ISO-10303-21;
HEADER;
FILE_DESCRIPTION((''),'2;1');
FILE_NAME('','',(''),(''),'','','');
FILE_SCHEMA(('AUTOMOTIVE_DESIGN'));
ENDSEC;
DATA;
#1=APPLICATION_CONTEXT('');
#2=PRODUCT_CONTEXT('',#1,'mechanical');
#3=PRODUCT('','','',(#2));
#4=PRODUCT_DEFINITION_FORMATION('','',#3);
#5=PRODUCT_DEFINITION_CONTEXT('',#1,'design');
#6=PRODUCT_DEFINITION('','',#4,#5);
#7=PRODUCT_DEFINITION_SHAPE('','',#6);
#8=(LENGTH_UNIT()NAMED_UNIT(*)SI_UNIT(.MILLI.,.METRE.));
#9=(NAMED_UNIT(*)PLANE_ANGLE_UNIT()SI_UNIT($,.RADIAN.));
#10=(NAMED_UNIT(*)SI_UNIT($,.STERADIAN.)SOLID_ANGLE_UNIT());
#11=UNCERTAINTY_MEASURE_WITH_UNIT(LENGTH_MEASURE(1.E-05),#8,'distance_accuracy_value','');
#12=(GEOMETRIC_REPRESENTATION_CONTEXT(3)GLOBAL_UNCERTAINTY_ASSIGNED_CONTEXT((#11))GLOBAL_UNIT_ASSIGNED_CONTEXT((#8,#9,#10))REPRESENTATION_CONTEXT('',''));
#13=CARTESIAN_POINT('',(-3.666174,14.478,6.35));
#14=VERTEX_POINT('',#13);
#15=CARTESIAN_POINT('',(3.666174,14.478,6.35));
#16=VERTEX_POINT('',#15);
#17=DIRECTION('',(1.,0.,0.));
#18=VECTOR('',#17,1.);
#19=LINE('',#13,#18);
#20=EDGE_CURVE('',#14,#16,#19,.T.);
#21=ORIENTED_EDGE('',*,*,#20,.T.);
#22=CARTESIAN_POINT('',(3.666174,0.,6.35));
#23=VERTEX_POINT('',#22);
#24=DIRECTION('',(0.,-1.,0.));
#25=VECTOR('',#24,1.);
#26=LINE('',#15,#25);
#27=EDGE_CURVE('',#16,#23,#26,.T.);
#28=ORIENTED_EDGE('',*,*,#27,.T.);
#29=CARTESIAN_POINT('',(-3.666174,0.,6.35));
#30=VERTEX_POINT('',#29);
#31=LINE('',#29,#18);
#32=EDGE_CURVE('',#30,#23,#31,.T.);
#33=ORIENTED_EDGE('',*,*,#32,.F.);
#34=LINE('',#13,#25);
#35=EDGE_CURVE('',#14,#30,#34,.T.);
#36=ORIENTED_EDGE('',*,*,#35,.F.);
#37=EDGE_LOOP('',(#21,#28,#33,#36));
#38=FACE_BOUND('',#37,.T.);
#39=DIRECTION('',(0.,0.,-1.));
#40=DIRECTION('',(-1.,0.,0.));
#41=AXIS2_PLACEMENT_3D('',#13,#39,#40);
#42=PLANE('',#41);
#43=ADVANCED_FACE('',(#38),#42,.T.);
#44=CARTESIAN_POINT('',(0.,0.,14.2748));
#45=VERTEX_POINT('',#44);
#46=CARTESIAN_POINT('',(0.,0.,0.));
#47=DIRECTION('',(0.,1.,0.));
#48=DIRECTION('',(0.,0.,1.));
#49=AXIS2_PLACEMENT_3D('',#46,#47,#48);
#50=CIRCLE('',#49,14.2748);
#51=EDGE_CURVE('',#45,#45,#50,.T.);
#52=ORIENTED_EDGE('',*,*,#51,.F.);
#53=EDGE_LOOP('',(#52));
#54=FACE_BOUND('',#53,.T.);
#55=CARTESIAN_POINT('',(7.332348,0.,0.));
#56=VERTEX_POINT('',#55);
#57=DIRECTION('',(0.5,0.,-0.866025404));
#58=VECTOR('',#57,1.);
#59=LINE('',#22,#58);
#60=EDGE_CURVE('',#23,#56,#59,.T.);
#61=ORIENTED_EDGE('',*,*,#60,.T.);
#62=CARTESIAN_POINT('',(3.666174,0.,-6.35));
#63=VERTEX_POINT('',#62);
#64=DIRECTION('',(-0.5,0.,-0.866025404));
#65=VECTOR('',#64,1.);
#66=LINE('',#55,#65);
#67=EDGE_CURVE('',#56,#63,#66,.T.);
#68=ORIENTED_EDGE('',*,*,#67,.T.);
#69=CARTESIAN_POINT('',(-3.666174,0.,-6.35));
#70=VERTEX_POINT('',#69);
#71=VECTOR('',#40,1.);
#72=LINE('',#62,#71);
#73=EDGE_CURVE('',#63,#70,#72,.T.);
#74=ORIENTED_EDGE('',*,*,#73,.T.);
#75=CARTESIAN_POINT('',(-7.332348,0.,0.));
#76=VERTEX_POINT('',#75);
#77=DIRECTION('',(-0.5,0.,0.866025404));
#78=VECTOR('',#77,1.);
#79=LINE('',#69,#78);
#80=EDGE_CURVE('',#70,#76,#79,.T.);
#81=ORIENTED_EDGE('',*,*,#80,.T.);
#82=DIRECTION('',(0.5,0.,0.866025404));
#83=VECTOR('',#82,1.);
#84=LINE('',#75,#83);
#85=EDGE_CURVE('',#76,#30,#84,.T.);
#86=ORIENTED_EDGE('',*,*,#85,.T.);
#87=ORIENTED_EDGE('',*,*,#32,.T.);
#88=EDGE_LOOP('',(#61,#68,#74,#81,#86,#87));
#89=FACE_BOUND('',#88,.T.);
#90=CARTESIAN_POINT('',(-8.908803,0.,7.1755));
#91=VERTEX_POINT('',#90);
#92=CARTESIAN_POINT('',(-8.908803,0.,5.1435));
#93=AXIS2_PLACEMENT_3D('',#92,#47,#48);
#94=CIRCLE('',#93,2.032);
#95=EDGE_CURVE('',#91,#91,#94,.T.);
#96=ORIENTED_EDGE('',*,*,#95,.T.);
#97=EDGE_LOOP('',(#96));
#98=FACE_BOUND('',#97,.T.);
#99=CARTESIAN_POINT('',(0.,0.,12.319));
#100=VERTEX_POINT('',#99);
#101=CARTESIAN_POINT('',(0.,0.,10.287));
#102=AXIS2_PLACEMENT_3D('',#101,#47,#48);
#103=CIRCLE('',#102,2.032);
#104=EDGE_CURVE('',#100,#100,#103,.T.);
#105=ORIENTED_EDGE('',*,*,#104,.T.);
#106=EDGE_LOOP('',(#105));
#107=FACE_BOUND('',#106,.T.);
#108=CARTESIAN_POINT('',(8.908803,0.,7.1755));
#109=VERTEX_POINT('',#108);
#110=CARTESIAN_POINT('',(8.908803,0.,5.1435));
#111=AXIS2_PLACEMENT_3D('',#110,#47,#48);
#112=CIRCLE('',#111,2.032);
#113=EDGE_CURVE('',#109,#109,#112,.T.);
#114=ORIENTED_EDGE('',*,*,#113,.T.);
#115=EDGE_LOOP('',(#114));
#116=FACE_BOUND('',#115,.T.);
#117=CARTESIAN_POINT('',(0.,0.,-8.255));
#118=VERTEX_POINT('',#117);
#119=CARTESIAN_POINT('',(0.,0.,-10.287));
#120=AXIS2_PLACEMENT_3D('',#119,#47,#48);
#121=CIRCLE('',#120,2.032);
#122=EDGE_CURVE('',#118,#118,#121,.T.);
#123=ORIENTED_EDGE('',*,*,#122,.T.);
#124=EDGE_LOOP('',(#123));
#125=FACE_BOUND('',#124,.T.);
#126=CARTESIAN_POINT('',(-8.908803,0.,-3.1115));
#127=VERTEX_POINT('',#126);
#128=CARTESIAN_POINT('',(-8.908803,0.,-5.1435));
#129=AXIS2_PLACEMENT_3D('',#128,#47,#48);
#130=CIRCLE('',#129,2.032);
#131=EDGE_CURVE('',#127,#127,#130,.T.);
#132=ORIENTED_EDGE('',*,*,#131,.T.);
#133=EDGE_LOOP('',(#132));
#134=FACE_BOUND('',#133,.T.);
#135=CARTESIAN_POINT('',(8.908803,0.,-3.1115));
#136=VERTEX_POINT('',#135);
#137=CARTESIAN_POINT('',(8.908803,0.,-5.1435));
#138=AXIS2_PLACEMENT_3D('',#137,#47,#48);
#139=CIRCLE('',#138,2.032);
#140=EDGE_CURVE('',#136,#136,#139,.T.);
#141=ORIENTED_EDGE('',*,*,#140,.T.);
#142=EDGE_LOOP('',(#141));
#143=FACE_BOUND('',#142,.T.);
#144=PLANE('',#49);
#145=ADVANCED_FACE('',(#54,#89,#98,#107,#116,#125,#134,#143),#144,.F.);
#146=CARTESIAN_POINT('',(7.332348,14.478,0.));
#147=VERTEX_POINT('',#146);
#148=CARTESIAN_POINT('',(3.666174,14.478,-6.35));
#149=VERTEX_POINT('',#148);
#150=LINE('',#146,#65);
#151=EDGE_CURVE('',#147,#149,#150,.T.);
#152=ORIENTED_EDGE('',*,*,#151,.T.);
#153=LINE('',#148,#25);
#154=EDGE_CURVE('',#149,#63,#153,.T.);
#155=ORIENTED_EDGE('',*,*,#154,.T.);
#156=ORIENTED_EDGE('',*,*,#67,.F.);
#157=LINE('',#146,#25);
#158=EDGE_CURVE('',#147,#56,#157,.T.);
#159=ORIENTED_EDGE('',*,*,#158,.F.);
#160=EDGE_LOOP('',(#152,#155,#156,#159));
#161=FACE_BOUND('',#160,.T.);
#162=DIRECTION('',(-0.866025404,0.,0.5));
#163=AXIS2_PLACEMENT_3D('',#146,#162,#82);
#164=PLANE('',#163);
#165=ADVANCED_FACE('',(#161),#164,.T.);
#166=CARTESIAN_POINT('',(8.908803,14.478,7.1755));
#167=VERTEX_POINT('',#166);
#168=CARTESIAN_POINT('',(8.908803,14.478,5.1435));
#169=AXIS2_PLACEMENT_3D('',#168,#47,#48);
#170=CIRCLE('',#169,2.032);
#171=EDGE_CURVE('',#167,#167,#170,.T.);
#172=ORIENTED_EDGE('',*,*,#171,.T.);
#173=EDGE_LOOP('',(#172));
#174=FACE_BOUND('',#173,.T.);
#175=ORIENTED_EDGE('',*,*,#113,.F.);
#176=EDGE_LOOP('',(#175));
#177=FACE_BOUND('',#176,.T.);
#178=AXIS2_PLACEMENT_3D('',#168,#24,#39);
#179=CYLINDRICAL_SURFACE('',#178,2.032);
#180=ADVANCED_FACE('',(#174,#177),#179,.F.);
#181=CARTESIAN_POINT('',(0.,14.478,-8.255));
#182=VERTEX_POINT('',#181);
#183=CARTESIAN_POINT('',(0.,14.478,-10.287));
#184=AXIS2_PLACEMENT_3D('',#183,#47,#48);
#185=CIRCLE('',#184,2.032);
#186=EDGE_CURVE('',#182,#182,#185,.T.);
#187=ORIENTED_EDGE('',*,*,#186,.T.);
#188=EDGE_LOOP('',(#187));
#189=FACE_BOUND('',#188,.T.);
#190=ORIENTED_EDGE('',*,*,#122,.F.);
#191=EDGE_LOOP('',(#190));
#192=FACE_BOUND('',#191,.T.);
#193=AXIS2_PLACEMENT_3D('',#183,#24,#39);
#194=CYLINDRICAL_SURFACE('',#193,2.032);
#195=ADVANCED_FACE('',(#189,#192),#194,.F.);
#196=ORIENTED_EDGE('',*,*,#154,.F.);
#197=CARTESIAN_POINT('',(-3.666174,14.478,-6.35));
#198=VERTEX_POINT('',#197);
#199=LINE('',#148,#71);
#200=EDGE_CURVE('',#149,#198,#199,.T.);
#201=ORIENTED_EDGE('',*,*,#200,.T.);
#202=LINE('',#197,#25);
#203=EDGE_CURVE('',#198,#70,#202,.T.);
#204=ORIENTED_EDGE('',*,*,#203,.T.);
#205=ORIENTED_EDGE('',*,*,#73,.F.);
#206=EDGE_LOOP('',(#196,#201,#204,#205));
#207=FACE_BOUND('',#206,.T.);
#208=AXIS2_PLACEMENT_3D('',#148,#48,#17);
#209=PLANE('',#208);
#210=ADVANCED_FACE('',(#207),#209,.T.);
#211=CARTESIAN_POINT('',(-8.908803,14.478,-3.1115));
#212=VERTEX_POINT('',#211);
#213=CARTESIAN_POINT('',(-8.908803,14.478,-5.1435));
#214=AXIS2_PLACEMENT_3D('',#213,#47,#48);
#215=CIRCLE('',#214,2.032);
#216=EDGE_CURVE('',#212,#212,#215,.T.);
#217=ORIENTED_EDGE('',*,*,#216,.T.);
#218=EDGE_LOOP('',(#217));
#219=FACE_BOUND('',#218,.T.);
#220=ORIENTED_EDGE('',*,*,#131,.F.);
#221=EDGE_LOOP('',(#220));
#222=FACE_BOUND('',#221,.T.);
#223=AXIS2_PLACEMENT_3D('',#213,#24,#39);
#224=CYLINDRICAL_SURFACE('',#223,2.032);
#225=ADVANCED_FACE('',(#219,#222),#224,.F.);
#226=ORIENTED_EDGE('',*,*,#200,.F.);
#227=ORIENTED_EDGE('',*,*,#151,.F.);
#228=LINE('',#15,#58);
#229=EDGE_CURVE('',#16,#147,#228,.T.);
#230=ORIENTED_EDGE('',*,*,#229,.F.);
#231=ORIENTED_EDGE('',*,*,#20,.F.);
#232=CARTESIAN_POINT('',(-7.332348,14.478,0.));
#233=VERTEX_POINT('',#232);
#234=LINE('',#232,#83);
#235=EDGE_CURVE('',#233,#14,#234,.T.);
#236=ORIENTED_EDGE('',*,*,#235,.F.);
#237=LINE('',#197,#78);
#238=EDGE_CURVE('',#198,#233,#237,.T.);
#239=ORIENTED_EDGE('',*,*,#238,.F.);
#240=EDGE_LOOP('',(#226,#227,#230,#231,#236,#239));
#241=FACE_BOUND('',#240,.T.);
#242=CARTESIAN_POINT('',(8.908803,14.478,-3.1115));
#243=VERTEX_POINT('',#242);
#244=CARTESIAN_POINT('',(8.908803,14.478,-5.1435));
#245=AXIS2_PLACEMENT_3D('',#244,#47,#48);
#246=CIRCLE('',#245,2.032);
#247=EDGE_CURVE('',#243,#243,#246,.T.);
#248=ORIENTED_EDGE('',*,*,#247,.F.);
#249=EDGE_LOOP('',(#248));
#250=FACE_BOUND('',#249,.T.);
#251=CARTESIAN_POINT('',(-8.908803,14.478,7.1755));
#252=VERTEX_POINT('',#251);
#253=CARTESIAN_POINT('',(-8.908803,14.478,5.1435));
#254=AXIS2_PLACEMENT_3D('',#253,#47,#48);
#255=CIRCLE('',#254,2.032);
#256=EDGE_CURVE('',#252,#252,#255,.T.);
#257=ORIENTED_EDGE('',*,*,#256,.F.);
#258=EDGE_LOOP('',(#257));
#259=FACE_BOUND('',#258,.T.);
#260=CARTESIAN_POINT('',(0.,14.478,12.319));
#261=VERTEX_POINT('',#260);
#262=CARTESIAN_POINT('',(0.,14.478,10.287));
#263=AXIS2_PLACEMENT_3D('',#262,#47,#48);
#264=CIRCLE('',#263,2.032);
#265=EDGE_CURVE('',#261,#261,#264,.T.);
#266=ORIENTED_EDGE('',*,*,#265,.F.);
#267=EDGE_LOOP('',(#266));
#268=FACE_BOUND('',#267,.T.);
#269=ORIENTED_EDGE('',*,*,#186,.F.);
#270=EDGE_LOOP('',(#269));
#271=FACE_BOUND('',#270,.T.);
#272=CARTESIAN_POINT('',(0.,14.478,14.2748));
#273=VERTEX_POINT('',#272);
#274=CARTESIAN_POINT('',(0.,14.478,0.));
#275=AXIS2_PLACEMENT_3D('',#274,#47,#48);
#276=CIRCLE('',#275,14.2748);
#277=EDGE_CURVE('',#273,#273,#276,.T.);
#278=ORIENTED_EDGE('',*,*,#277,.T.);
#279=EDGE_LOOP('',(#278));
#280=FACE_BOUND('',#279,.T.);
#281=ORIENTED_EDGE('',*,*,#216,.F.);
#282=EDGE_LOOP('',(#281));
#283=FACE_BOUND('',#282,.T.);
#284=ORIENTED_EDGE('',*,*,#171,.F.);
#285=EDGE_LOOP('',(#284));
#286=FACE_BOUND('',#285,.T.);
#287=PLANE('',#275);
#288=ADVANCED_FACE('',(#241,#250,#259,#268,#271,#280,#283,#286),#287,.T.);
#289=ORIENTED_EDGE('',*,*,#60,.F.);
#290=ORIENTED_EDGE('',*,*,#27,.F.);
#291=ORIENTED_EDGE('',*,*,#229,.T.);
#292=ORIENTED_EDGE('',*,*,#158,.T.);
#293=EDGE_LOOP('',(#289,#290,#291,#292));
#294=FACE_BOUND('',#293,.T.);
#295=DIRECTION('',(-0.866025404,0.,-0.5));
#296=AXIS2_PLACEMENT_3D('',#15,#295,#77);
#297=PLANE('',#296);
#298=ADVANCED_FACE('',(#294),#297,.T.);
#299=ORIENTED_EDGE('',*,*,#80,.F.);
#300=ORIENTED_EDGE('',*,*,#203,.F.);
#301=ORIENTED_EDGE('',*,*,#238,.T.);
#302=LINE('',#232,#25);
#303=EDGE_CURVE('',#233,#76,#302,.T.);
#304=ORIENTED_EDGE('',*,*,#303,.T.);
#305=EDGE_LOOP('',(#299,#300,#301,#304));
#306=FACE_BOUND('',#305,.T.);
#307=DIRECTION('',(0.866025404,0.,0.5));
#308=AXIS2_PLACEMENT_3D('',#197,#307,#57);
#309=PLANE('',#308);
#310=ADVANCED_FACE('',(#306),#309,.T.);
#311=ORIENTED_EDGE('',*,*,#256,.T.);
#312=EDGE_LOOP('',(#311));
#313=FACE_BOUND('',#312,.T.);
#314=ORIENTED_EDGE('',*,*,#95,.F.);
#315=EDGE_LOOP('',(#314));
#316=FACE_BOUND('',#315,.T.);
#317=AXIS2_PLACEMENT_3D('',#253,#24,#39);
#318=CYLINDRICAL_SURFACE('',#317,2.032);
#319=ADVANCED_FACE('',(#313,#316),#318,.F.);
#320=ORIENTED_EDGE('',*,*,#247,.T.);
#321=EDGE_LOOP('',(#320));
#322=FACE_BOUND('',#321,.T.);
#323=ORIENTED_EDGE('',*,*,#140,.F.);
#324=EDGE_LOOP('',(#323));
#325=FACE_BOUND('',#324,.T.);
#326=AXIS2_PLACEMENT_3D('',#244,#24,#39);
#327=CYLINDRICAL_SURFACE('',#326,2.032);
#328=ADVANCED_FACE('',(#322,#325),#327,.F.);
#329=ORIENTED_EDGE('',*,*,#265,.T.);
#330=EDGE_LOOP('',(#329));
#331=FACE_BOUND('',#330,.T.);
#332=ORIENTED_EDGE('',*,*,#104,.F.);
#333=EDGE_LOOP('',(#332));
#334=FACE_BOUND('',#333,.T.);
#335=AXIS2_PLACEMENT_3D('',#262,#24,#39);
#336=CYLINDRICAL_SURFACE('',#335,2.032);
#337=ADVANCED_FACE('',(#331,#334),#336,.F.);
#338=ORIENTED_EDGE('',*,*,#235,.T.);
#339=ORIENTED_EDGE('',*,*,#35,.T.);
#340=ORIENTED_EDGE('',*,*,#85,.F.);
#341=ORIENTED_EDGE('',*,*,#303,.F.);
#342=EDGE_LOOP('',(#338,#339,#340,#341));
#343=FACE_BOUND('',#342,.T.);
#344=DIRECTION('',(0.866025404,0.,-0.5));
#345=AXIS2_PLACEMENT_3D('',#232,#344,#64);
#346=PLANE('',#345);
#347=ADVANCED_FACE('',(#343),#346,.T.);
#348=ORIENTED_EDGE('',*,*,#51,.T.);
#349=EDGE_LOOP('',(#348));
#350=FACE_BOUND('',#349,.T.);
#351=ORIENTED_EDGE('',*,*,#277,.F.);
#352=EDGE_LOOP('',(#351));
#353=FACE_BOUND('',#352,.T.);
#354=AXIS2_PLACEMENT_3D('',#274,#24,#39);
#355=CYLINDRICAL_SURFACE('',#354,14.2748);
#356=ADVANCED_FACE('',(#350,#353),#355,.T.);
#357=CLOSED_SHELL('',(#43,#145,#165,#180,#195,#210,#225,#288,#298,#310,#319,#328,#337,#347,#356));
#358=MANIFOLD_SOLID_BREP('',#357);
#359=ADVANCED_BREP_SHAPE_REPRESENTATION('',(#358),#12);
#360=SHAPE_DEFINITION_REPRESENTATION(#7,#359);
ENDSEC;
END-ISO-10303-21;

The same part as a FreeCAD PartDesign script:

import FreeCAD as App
import Part
import Sketcher

V = App.Vector
Q = App.Units.Quantity

doc = App.newDocument("Part")
body = doc.addObject("PartDesign::Body", "Body")

sketch1 = doc.addObject("Sketcher::SketchObject", "Sketch")
body.addObject(sketch1)
sketch1.AttachmentSupport = (doc.XZ_Plane, [""])
sketch1.MapMode = "FlatFace"
sketch1.addGeometry(Part.Circle(V(0, 0, 0), V(0, 0, 1), 14.2748), False)
sketch1.addGeometry(Part.Circle(V(-8.908803, -5.1435, 0), V(0, 0, 1), 2.032), False)
sketch1.addGeometry(Part.Circle(V(0, -10.287, 0), V(0, 0, 1), 2.032), False)
sketch1.addGeometry(Part.Circle(V(-8.908803, 5.1435, 0), V(0, 0, 1), 2.032), False)
sketch1.addGeometry(Part.Circle(V(8.908803, -5.1435, 0), V(0, 0, 1), 2.032), False)
sketch1.addGeometry(Part.LineSegment(V(3.666174, -6.35, 0), V(7.332348, 0, 0)), False)
sketch1.addGeometry(Part.LineSegment(V(7.332348, 0, 0), V(3.666174, 6.35, 0)), False)
sketch1.addGeometry(Part.LineSegment(V(3.666174, 6.35, 0), V(-3.666174, 6.35, 0)), False)
sketch1.addGeometry(Part.LineSegment(V(-3.666174, 6.35, 0), V(-7.332348, 0, 0)), False)
sketch1.addGeometry(Part.LineSegment(V(-7.332348, 0, 0), V(-3.666174, -6.35, 0)), False)
sketch1.addGeometry(Part.LineSegment(V(-3.666174, -6.35, 0), V(3.666174, -6.35, 0)), False)
sketch1.addGeometry(Part.Circle(V(0, 10.287, 0), V(0, 0, 1), 2.032), False)
sketch1.addGeometry(Part.Circle(V(8.908803, 5.1435, 0), V(0, 0, 1), 2.032), False)
sketch1.addConstraint(Sketcher.Constraint("Coincident", 5, 2, 6, 1))
sketch1.addConstraint(Sketcher.Constraint("Coincident", 6, 2, 7, 1))
sketch1.addConstraint(Sketcher.Constraint("Coincident", 7, 2, 8, 1))
sketch1.addConstraint(Sketcher.Constraint("Coincident", 8, 2, 9, 1))
sketch1.addConstraint(Sketcher.Constraint("Coincident", 9, 2, 10, 1))
sketch1.addConstraint(Sketcher.Constraint("Coincident", 10, 2, 5, 1))
sketch1.addConstraint(Sketcher.Constraint("Horizontal", 7))
sketch1.addConstraint(Sketcher.Constraint("Horizontal", 10))
sketch1.addConstraint(Sketcher.Constraint("Coincident", 0, 3, -1, 1))
sketch1.addConstraint(Sketcher.Constraint("Equal", 1, 2))
sketch1.addConstraint(Sketcher.Constraint("Equal", 2, 3))
sketch1.addConstraint(Sketcher.Constraint("Equal", 3, 4))
sketch1.addConstraint(Sketcher.Constraint("Equal", 4, 11))
sketch1.addConstraint(Sketcher.Constraint("Equal", 11, 12))
sketch1.addConstraint(Sketcher.Constraint("Symmetric", 3, 3, 4, 3, -1, 1))
sketch1.addConstraint(Sketcher.Constraint("Symmetric", 2, 3, 11, 3, -1, 1))
sketch1.addConstraint(Sketcher.Constraint("Symmetric", 1, 3, 12, 3, -1, 1))
sketch1.addConstraint(Sketcher.Constraint("Symmetric", 5, 2, 8, 2, -1, 1))
sketch1.addConstraint(Sketcher.Constraint("Symmetric", 6, 2, 9, 2, -1, 1))
sketch1.addConstraint(Sketcher.Constraint("Symmetric", 1, 3, 4, 3, -2))
sketch1.addConstraint(Sketcher.Constraint("PointOnObject", 2, 3, -2))
sketch1.addConstraint(Sketcher.Constraint("PointOnObject", 5, 2, -1))
sketch1.addConstraint(Sketcher.Constraint("Parallel", 5, 8))
sketch1.addConstraint(Sketcher.Constraint("Vertical", 7, 2, 9, 2))
sketch1.addConstraint(Sketcher.Constraint("Diameter", 1, Q("0.16 in")))
sketch1.addConstraint(Sketcher.Constraint("Diameter", 0, Q("1.124 in")))
sketch1.addConstraint(Sketcher.Constraint("Angle", 5, Q("60 deg")))
sketch1.addConstraint(Sketcher.Constraint("DistanceY", -1, 1, 6, 2, Q("0.25 in")))
sketch1.addConstraint(Sketcher.Constraint("DistanceY", 2, 3, 11, 3, Q("0.81 in")))
sketch1.addConstraint(Sketcher.Constraint("DistanceY", 1, 3, 3, 3, Q("0.405 in")))
sketch1.addConstraint(Sketcher.Constraint("DistanceX", 7, 2, 7, 1, 7.332348))
sketch1.addConstraint(Sketcher.Constraint("DistanceX", 6, 2, 12, 3, 5.242629))
pad1 = doc.addObject("PartDesign::Pad", "Pad")
body.addObject(pad1)
pad1.Profile = sketch1
pad1.Length = Q("0.57 in")
pad1.Reversed = True

doc.recompute()
